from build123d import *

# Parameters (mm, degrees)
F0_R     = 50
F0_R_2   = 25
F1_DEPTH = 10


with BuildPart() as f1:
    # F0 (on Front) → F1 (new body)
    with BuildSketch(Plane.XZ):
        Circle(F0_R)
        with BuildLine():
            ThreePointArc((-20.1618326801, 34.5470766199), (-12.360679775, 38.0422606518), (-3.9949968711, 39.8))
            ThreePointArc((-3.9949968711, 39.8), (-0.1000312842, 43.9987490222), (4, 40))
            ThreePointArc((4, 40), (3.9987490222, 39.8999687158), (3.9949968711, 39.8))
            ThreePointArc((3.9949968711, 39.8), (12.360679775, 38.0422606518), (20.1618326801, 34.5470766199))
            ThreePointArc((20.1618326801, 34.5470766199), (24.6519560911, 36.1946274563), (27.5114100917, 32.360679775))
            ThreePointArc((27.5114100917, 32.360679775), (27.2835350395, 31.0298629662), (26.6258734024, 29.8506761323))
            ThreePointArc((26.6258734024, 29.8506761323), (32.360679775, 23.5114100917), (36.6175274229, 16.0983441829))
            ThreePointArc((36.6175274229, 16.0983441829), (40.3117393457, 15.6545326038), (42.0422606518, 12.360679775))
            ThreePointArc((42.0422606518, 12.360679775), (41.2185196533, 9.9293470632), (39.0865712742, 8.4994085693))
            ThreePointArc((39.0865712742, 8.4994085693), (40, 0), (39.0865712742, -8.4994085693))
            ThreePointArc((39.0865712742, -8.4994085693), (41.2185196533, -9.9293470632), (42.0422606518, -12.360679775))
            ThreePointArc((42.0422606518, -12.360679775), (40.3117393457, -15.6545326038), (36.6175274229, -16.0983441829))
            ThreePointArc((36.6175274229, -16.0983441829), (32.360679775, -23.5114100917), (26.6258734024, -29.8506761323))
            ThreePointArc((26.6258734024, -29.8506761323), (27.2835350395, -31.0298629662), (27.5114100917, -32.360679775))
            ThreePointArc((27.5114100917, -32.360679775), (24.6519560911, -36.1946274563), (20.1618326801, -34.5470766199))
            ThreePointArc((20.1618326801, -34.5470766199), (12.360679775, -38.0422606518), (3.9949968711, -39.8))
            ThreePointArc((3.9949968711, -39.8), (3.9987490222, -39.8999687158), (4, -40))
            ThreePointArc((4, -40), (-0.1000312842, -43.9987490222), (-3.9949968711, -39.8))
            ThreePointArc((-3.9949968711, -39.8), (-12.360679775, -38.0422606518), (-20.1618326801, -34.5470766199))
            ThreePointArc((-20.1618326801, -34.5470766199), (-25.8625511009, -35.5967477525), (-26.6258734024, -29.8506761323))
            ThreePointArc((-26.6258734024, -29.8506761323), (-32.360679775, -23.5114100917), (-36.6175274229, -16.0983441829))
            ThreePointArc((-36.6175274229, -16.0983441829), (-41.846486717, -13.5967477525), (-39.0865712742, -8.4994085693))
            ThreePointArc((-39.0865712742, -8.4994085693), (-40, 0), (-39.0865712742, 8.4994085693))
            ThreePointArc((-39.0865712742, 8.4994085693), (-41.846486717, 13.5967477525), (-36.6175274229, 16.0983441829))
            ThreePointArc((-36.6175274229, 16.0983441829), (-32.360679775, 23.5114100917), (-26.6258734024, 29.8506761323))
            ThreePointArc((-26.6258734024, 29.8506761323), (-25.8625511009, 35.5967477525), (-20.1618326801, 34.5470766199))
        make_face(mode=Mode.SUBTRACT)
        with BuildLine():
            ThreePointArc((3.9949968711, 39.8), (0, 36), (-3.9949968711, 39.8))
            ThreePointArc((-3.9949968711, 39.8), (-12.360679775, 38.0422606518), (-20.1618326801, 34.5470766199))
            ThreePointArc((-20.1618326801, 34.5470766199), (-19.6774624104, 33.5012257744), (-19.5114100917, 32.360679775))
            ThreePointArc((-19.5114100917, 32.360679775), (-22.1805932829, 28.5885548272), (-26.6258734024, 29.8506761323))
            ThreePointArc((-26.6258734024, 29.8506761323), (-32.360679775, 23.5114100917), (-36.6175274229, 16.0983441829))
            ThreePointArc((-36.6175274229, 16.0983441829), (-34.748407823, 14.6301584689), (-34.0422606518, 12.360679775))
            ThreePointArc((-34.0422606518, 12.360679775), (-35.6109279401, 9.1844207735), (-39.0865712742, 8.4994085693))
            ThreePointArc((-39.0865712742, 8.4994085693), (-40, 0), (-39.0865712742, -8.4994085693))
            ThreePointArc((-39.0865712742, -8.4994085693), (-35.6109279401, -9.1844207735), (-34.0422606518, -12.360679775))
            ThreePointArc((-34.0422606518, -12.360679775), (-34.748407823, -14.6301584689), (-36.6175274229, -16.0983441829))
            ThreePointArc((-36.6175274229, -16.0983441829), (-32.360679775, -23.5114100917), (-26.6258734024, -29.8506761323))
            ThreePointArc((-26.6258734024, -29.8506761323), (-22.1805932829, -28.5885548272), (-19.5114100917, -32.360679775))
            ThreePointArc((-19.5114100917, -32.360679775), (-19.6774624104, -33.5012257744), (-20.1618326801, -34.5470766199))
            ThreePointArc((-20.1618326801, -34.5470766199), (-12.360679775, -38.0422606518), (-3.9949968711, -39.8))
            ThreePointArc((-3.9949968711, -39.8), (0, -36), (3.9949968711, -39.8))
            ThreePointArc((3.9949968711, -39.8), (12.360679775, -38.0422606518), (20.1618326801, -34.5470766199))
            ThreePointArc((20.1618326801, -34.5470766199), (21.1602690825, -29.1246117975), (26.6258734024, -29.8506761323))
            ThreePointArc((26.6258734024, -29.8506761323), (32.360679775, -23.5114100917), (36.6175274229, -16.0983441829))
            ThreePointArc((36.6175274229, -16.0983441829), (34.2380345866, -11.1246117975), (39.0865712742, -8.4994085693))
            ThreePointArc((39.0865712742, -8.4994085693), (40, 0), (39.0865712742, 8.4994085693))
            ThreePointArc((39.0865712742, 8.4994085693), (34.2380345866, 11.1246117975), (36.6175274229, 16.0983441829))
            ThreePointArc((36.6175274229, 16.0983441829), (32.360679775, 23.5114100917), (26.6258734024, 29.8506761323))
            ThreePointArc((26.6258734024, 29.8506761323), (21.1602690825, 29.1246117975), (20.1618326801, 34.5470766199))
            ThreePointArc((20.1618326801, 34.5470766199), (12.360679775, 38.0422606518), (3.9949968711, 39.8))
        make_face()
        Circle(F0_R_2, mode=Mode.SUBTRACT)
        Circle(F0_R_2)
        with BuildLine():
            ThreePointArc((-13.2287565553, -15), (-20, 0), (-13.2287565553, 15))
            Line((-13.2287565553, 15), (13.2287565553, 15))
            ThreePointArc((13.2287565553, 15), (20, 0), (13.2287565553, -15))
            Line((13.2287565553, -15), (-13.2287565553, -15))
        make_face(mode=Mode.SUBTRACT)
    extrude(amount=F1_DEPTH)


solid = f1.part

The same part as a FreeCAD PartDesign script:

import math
import FreeCAD as App
import Part
import Sketcher

doc = App.newDocument("Part")
params = doc.addObject("Spreadsheet::Sheet", "Params")
for row, (alias, value) in enumerate([
    ("sketch1_diameter", "100 mm"),
    ("sketch1_radius", "4 mm"),
    ("sketch1_radius2", "20 mm"),
    ("pad1_length", "10 mm"),
], start=1):
    params.set(f"A{row}", alias)
    params.set(f"B{row}", "=" + value)
    params.setAlias(f"B{row}", alias)

body = doc.addObject("PartDesign::Body", "Body")

sketch1 = body.newObject("Sketcher::SketchObject", "Sketch")
sketch1.AttachmentSupport = (doc.getObject("XZ_Plane"), [""])
sketch1.MapMode = "FlatFace"
sketch1.addGeometry([
    Part.Circle(App.Vector(0, 0, 0), App.Vector(0, 0, 1), 50),
    Part.ArcOfCircle(Part.Circle(App.Vector(-23.51, -32.36, 0), App.Vector(0, 0, 1), 4), math.radians(141), math.radians(327)),
    Part.ArcOfCircle(Part.Circle(App.Vector(-23.51, -32.36, 0), App.Vector(0, 0, 1), 4), math.radians(0), math.radians(141)),
    Part.ArcOfCircle(Part.Circle(App.Vector(-23.51, -32.36, 0), App.Vector(0, 0, 1), 4), math.radians(-33), math.radians(0)),
    Part.ArcOfCircle(Part.Circle(App.Vector(-38.04, -12.36, 0), App.Vector(0, 0, 1), 4), math.radians(105), math.radians(291)),
    Part.ArcOfCircle(Part.Circle(App.Vector(-38.04, -12.36, 0), App.Vector(0, 0, 1), 4), math.radians(0), math.radians(105)),
    Part.ArcOfCircle(Part.Circle(App.Vector(-38.04, -12.36, 0), App.Vector(0, 0, 1), 4), math.radians(-69), math.radians(0)),
    Part.ArcOfCircle(Part.Circle(App.Vector(0, -40, 0), App.Vector(0, 0, 1), 4), math.radians(177), math.radians(360)),
    Part.ArcOfCircle(Part.Circle(App.Vector(0, -40, 0), App.Vector(0, 0, 1), 4), math.radians(3), math.radians(177)),
    Part.ArcOfCircle(Part.Circle(App.Vector(0, -40, 0), App.Vector(0, 0, 1), 4), math.radians(0), math.radians(2.87)),
    Part.ArcOfCircle(Part.Circle(App.Vector(23.51, -32.36, 0), App.Vector(0, 0, 1), 4), math.radians(-147), math.radians(0)),
    Part.ArcOfCircle(Part.Circle(App.Vector(23.51, -32.36, 0), App.Vector(0, 0, 1), 4), math.radians(39), math.radians(213)),
    Part.ArcOfCircle(Part.Circle(App.Vector(23.51, -32.36, 0), App.Vector(0, 0, 1), 4), math.radians(0), math.radians(39)),
    Part.LineSegment(App.Vector(13.23, -15, 0), App.Vector(-13.23, -15, 0)),
    Part.ArcOfCircle(Part.Circle(App.Vector(0, 0, 0), App.Vector(0, 0, 1), 20), math.radians(131), math.radians(229)),
    Part.LineSegment(App.Vector(-13.23, 15, 0), App.Vector(13.23, 15, 0)),
    Part.ArcOfCircle(Part.Circle(App.Vector(0, 0, 0), App.Vector(0, 0, 1), 20), math.radians(-49), math.radians(49)),
    Part.ArcOfCircle(Part.Circle(App.Vector(38.04, -12.36, 0), App.Vector(0, 0, 1), 4), math.radians(-111), math.radians(0)),
    Part.ArcOfCircle(Part.Circle(App.Vector(38.04, -12.36, 0), App.Vector(0, 0, 1), 4), math.radians(75), math.radians(249)),
    Part.ArcOfCircle(Part.Circle(App.Vector(38.04, -12.36, 0), App.Vector(0, 0, 1), 4), math.radians(0), math.radians(75)),
    Part.ArcOfCircle(Part.Circle(App.Vector(-38.04, 12.36, 0), App.Vector(0, 0, 1), 4), math.radians(69), math.radians(255)),
    Part.ArcOfCircle(Part.Circle(App.Vector(-38.04, 12.36, 0), App.Vector(0, 0, 1), 4), math.radians(0), math.radians(69)),
    Part.ArcOfCircle(Part.Circle(App.Vector(-38.04, 12.36, 0), App.Vector(0, 0, 1), 4), math.radians(-105), math.radians(0)),
    Part.ArcOfCircle(Part.Circle(App.Vector(-23.51, 32.36, 0), App.Vector(0, 0, 1), 4), math.radians(33), math.radians(219)),
    Part.ArcOfCircle(Part.Circle(App.Vector(-23.51, 32.36, 0), App.Vector(0, 0, 1), 4), math.radians(0), math.radians(33)),
    Part.ArcOfCircle(Part.Circle(App.Vector(-23.51, 32.36, 0), App.Vector(0, 0, 1), 4), math.radians(-141), math.radians(0)),
    Part.ArcOfCircle(Part.Circle(App.Vector(38.04, 12.36, 0), App.Vector(0, 0, 1), 4), math.radians(-75), math.radians(0)),
    Part.ArcOfCircle(Part.Circle(App.Vector(38.04, 12.36, 0), App.Vector(0, 0, 1), 4), math.radians(111), math.radians(285)),
    Part.ArcOfCircle(Part.Circle(App.Vector(38.04, 12.36, 0), App.Vector(0, 0, 1), 4), math.radians(0), math.radians(111)),
    Part.ArcOfCircle(Part.Circle(App.Vector(0, 40, 0), App.Vector(0, 0, 1), 4), math.radians(-2.87), math.radians(0)),
    Part.ArcOfCircle(Part.Circle(App.Vector(0, 40, 0), App.Vector(0, 0, 1), 4), math.radians(-177), math.radians(-3)),
    Part.ArcOfCircle(Part.Circle(App.Vector(0, 40, 0), App.Vector(0, 0, 1), 4), math.radians(0), math.radians(183)),
    Part.ArcOfCircle(Part.Circle(App.Vector(23.51, 32.36, 0), App.Vector(0, 0, 1), 4), math.radians(-39), math.radians(0)),
    Part.ArcOfCircle(Part.Circle(App.Vector(23.51, 32.36, 0), App.Vector(0, 0, 1), 4), math.radians(147), math.radians(321)),
    Part.ArcOfCircle(Part.Circle(App.Vector(23.51, 32.36, 0), App.Vector(0, 0, 1), 4), math.radians(0), math.radians(147)),
], False)
sketch1.addConstraint([
    Sketcher.Constraint("Tangent", 1, 1, 2, 2),
    Sketcher.Constraint("Tangent", 2, 1, 3, 2),
    Sketcher.Constraint("Tangent", 3, 1, 1, 2),
    Sketcher.Constraint("Tangent", 4, 1, 5, 2),
    Sketcher.Constraint("Tangent", 5, 1, 6, 2),
    Sketcher.Constraint("Tangent", 6, 1, 4, 2),
    Sketcher.Constraint("Tangent", 7, 1, 8, 2),
    Sketcher.Constraint("Tangent", 8, 1, 9, 2),
    Sketcher.Constraint("Tangent", 9, 1, 7, 2),
    Sketcher.Constraint("Tangent", 10, 1, 11, 2),
    Sketcher.Constraint("Tangent", 11, 1, 12, 2),
    Sketcher.Constraint("Tangent", 12, 1, 10, 2),
    Sketcher.Constraint("Coincident", 13, 2, 14, 2),
    Sketcher.Constraint("Coincident", 14, 1, 15, 1),
    Sketcher.Constraint("Coincident", 15, 2, 16, 2),
    Sketcher.Constraint("Coincident", 16, 1, 13, 1),
    Sketcher.Constraint("Tangent", 17, 1, 18, 2),
    Sketcher.Constraint("Tangent", 18, 1, 19, 2),
    Sketcher.Constraint("Tangent", 19, 1, 17, 2),
    Sketcher.Constraint("Tangent", 20, 1, 21, 2),
    Sketcher.Constraint("Tangent", 21, 1, 22, 2),
    Sketcher.Constraint("Tangent", 22, 1, 20, 2),
    Sketcher.Constraint("Tangent", 23, 1, 24, 2),
    Sketcher.Constraint("Tangent", 24, 1, 25, 2),
    Sketcher.Constraint("Tangent", 25, 1, 23, 2),
    Sketcher.Constraint("Tangent", 26, 1, 27, 2),
    Sketcher.Constraint("Tangent", 27, 1, 28, 2),
    Sketcher.Constraint("Tangent", 28, 1, 26, 2),
    Sketcher.Constraint("Tangent", 29, 1, 30, 2),
    Sketcher.Constraint("Tangent", 30, 1, 31, 2),
    Sketcher.Constraint("Tangent", 31, 1, 29, 2),
    Sketcher.Constraint("Tangent", 32, 1, 33, 2),
    Sketcher.Constraint("Tangent", 33, 1, 34, 2),
    Sketcher.Constraint("Tangent", 34, 1, 32, 2),
    Sketcher.Constraint("Horizontal", 13),
    Sketcher.Constraint("Horizontal", 15),
    Sketcher.Constraint("Coincident", 0, 3, -1, 1),
    Sketcher.Constraint("Coincident", 14, 3, -1, 1),
    Sketcher.Constraint("Coincident", 16, 3, -1, 1),
    Sketcher.Constraint("Equal", 3, 4),
    Sketcher.Constraint("Equal", 6, 7),
    Sketcher.Constraint("Equal", 9, 10),
    Sketcher.Constraint("Equal", 14, 16),
    Sketcher.Constraint("Equal", 12, 17),
    Sketcher.Constraint("Equal", 19, 20),
    Sketcher.Constraint("Equal", 22, 23),
    Sketcher.Constraint("Equal", 25, 26),
    Sketcher.Constraint("Equal", 28, 29),
    Sketcher.Constraint("Equal", 31, 32),
    Sketcher.Constraint("Symmetric", 17, 3, 20, 3, -1, 1),
    Sketcher.Constraint("Symmetric", 10, 3, 23, 3, -1, 1),
    Sketcher.Constraint("Symmetric", 4, 3, 26, 3, -1, 1),
    Sketcher.Constraint("Symmetric", 7, 3, 29, 3, -1, 1),
    Sketcher.Constraint("Symmetric", 1, 3, 32, 3, -1, 1),
    Sketcher.Constraint("Symmetric", 1, 3, 10, 3, -2),
    Sketcher.Constraint("Symmetric", 4, 3, 17, 3, -2),
    Sketcher.Constraint("Symmetric", 7, 1, 8, 1, -2),
    Sketcher.Constraint("Horizontal", 12, 3, 2, 1),
    Sketcher.Constraint("Horizontal", 19, 3, 5, 1),
    Sketcher.Constraint("Horizontal", 8, 3, 9, 1),
    Sketcher.Constraint("Horizontal", 3, 1, 10, 1),
    Sketcher.Constraint("Horizontal", 1, 1, 11, 1),
    Sketcher.Constraint("Horizontal", 2, 1, 12, 1),
    Sketcher.Constraint("Horizontal", 6, 1, 17, 1),
    Sketcher.Constraint("Horizontal", 4, 1, 18, 1),
    Sketcher.Constraint("Horizontal", 5, 1, 19, 1),
    Sketcher.Constraint("Horizontal", 28, 3, 21, 1),
    Sketcher.Constraint("Horizontal", 34, 3, 24, 1),
    Sketcher.Constraint("Horizontal", 22, 1, 26, 1),
    Sketcher.Constraint("Horizontal", 20, 1, 27, 1),
    Sketcher.Constraint("Horizontal", 21, 1, 28, 1),
    Sketcher.Constraint("Horizontal", 29, 1, 30, 1),
    Sketcher.Constraint("Horizontal", 30, 3, 31, 1),
    Sketcher.Constraint("Horizontal", 25, 1, 32, 1),
    Sketcher.Constraint("Horizontal", 23, 1, 33, 1),
    Sketcher.Constraint("Horizontal", 24, 1, 34, 1),
    Sketcher.Constraint("Vertical", 13, 2, 14, 1),
    Sketcher.Constraint("Vertical", 6, 1, 20, 1),
    Sketcher.Constraint("Vertical", 4, 1, 22, 1),
    Sketcher.Constraint("Vertical", 3, 1, 23, 1),
    Sketcher.Constraint("Vertical", 1, 1, 25, 1),
    Sketcher.Constraint("Vertical", 8, 1, 29, 1),
    Sketcher.Constraint("Diameter", 0, 100.0),
    Sketcher.Constraint("Radius", 1, 4.0),
    Sketcher.Constraint("Radius", 14, 20.0),
    Sketcher.Constraint("DistanceY", 7, 3, -1, 1, 40.0),
    Sketcher.Constraint("DistanceY", 13, 2, -1, 1, 15.0),
    Sketcher.Constraint("DistanceY", 7, 1, -1, 1, 39.8),
    Sketcher.Constraint("DistanceX", 1, 3, -1, 1, 23.51141),
    Sketcher.Constraint("DistanceY", 1, 3, -1, 1, 32.36068),
    Sketcher.Constraint("DistanceX", 4, 3, -1, 1, 38.042261),
    Sketcher.Constraint("DistanceY", 4, 3, -1, 1, 12.36068),
    Sketcher.Constraint("DistanceX", 4, 1, -1, 1, 39.086571),
    Sketcher.Constraint("DistanceX", 1, 1, -1, 1, 26.625873),
    Sketcher.Constraint("DistanceX", 3, 1, -1, 1, 20.161833),
    Sketcher.Constraint("DistanceX", 6, 1, -1, 1, 36.617527),
])
sketch1.setExpression("Constraints[82]", "Params.sketch1_diameter")
sketch1.setExpression("Constraints[83]", "Params.sketch1_radius")
sketch1.setExpression("Constraints[84]", "Params.sketch1_radius2")
pad1 = body.newObject("PartDesign::Pad", "Pad")
pad1.Profile = sketch1
pad1.setExpression("Length", "Params.pad1_length")

doc.recompute()
